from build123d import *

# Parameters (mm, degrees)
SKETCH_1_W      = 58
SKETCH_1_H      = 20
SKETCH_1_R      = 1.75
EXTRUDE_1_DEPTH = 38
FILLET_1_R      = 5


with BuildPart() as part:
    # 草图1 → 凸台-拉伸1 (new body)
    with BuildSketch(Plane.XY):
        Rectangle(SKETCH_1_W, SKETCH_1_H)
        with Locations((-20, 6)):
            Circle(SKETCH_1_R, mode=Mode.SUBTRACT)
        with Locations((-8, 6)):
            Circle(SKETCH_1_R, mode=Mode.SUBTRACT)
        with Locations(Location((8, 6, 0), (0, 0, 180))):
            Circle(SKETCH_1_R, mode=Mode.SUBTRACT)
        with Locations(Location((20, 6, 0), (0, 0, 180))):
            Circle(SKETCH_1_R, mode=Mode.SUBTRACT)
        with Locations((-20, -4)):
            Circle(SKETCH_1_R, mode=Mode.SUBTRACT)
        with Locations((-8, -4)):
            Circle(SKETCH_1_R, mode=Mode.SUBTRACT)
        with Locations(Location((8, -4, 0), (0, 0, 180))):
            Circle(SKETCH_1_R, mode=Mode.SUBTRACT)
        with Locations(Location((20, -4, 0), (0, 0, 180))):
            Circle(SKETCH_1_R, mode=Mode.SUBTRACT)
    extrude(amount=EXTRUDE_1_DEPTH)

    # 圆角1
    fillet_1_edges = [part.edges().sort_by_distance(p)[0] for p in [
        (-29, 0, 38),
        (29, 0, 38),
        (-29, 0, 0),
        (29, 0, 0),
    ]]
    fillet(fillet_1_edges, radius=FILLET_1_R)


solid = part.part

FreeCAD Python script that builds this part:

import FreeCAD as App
import Part
import Sketcher


def edges_at(feature, points):
    """Names of the edges that pass closest to the given points."""
    edges = feature.Shape.Edges
    near = lambda p: min(range(len(edges)), key=lambda i: edges[i].distToShape(Part.Vertex(*p))[0])
    return sorted({f"Edge{near(p) + 1}" for p in points})

doc = App.newDocument("Part")
body = doc.addObject("PartDesign::Body", "Body")

sketch1 = doc.addObject("Sketcher::SketchObject", "Sketch")
body.addObject(sketch1)
sketch1.AttachmentSupport = (doc.XY_Plane, [""])
sketch1.MapMode = "FlatFace"
sketch1.addGeometry([
    Part.LineSegment(App.Vector(-29, 10, 0), App.Vector(-29, -10, 0)),
    Part.LineSegment(App.Vector(-29, -10, 0), App.Vector(29, -10, 0)),
    Part.LineSegment(App.Vector(29, -10, 0), App.Vector(29, 10, 0)),
    Part.LineSegment(App.Vector(29, 10, 0), App.Vector(-29, 10, 0)),
    Part.Circle(App.Vector(-20, -4, 0), App.Vector(0, 0, 1), 1.8),
    Part.Circle(App.Vector(-8, -4, 0), App.Vector(0, 0, 1), 1.8),
    Part.Circle(App.Vector(8, -4, 0), App.Vector(0, 0, 1), 1.8),
    Part.Circle(App.Vector(20, -4, 0), App.Vector(0, 0, 1), 1.8),
    Part.Circle(App.Vector(-20, 6, 0), App.Vector(0, 0, 1), 1.8),
    Part.Circle(App.Vector(-8, 6, 0), App.Vector(0, 0, 1), 1.8),
    Part.Circle(App.Vector(8, 6, 0), App.Vector(0, 0, 1), 1.8),
    Part.Circle(App.Vector(20, 6, 0), App.Vector(0, 0, 1), 1.8),
], False)
sketch1.addConstraint([
    Sketcher.Constraint("Coincident", 0, 2, 1, 1),
    Sketcher.Constraint("Coincident", 1, 2, 2, 1),
    Sketcher.Constraint("Coincident", 2, 2, 3, 1),
    Sketcher.Constraint("Coincident", 3, 2, 0, 1),
    Sketcher.Constraint("Vertical", 0),
    Sketcher.Constraint("Horizontal", 1),
    Sketcher.Constraint("Vertical", 2),
    Sketcher.Constraint("Horizontal", 3),
    Sketcher.Constraint("Equal", 4, 5),
    Sketcher.Constraint("Equal", 5, 6),
    Sketcher.Constraint("Equal", 6, 7),
    Sketcher.Constraint("Equal", 7, 8),
    Sketcher.Constraint("Equal", 8, 9),
    Sketcher.Constraint("Equal", 9, 10),
    Sketcher.Constraint("Equal", 10, 11),
    Sketcher.Constraint("Symmetric", 0, 2, 2, 2, -1, 1),
    Sketcher.Constraint("Symmetric", 5, 3, 6, 3, -2),
    Sketcher.Constraint("Symmetric", 4, 3, 7, 3, -2),
    Sketcher.Constraint("Symmetric", 9, 3, 10, 3, -2),
    Sketcher.Constraint("Symmetric", 8, 3, 11, 3, -2),
    Sketcher.Constraint("Horizontal", 4, 3, 5, 3),
    Sketcher.Constraint("Horizontal", 8, 3, 9, 3),
    Sketcher.Constraint("Vertical", 4, 3, 8, 3),
    Sketcher.Constraint("Vertical", 5, 3, 9, 3),
    Sketcher.Constraint("Diameter", 4, 3.5),
    Sketcher.Constraint("DistanceX", 1, 1, 1, 2, 58.0),
    Sketcher.Constraint("DistanceY", 0, 2, 0, 1, 20.0),
    Sketcher.Constraint("DistanceX", 4, 3, -1, 1, 20.0),
    Sketcher.Constraint("DistanceY", 4, 3, -1, 1, 4.0),
    Sketcher.Constraint("DistanceX", 5, 3, -1, 1, 8.0),
    Sketcher.Constraint("DistanceY", -1, 1, 8, 3, 6.0),
])
pad1 = doc.addObject("PartDesign::Pad", "Pad")
body.addObject(pad1)
pad1.Profile = sketch1
pad1.Length = 38
doc.recompute()

fillet = doc.addObject("PartDesign::Fillet", "Fillet")
body.addObject(fillet)
fillet.Base = (pad1, edges_at(pad1, [
    (-29, 0, 38),
    (29, 0, 38),
    (-29, 0, 0),
    (29, 0, 0),
]))
fillet.Radius = 5

doc.recompute()
